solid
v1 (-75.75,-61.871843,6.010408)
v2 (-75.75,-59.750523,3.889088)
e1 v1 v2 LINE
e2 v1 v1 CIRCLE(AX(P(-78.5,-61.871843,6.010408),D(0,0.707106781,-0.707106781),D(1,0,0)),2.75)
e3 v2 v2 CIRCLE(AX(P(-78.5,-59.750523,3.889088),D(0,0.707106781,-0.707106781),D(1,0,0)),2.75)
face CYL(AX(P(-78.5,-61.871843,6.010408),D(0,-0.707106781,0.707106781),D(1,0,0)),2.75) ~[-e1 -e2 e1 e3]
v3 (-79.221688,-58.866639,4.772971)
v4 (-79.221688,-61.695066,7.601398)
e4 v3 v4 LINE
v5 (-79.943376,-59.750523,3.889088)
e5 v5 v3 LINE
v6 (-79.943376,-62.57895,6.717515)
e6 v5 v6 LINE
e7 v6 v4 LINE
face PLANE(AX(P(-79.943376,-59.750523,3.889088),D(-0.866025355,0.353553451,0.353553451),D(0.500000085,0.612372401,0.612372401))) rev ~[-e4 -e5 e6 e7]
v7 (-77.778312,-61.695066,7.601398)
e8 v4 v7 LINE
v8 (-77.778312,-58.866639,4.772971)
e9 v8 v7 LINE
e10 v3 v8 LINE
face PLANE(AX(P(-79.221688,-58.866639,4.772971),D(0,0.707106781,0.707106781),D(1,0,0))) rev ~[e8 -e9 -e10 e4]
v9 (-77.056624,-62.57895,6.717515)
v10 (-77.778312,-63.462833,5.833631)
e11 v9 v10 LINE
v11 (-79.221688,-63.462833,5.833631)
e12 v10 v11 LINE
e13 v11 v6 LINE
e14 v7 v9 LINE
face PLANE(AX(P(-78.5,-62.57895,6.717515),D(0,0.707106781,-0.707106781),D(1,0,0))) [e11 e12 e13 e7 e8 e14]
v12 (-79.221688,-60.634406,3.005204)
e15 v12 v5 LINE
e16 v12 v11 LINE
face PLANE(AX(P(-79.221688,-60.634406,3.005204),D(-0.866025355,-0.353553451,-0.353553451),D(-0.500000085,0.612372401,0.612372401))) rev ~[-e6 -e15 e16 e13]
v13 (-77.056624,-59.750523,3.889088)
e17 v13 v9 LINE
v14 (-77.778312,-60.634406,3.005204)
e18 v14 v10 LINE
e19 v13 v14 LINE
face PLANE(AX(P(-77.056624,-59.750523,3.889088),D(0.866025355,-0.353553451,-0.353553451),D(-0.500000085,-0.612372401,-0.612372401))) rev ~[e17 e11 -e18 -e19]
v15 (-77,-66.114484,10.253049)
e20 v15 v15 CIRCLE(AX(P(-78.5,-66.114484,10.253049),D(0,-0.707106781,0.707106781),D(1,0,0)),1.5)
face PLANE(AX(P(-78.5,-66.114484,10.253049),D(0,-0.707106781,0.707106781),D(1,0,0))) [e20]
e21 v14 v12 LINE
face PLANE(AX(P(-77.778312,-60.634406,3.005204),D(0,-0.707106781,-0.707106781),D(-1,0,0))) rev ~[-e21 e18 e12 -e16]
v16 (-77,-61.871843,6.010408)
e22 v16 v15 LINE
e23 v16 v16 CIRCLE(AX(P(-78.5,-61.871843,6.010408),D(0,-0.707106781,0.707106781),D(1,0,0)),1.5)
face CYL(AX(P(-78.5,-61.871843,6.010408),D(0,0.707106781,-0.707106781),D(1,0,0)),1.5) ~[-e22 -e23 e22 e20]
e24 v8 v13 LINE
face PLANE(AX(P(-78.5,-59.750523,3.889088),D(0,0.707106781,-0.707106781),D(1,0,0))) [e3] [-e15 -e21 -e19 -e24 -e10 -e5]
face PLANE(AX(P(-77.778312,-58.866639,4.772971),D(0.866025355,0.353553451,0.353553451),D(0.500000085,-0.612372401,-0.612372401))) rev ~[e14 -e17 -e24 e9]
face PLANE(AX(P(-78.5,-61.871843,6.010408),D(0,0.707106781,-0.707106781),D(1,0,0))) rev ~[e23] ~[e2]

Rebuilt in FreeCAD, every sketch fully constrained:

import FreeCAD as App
import Part
import Sketcher
Q = App.Units.Quantity

doc = App.newDocument("Part")
params = doc.addObject("Spreadsheet::Sheet", "Params")
for row, (alias, value) in enumerate([
    ("sketch1_diameter", "5.5 mm"),
    ("pad1_length", "3 mm"),
    ("sketch2_diameter", "3 mm"),
    ("pad2_length", "6 mm"),
    ("pocket1_length", "4 mm"),
], start=1):
    params.set(f"A{row}", alias)
    params.set(f"B{row}", "=" + value)
    params.setAlias(f"B{row}", alias)

body = doc.addObject("PartDesign::Body", "Body")

# Sketch on XY plane
sketch1 = doc.addObject("Sketcher::SketchObject", "Sketch")
body.addObject(sketch1)
sketch1.AttachmentSupport = (doc.XY_Plane, [""])
sketch1.MapMode = "FlatFace"
sketch1.addGeometry(Part.Circle(App.Vector(0, 0, 0), App.Vector(0, 0, 1), 2.8), False)
sketch1.addConstraint([
    Sketcher.Constraint("Coincident", 0, 3, -1, 1),
    Sketcher.Constraint("Diameter", 0, Q("5.5 mm")),
])
sketch1.setExpression("Constraints[1]", "Params.sketch1_diameter")
pad1 = doc.addObject("PartDesign::Pad", "Pad")
body.addObject(pad1)
pad1.Profile = sketch1
pad1.setExpression("Length", "Params.pad1_length")

# Sketch on XY plane
sketch2 = doc.addObject("Sketcher::SketchObject", "Sketch001")
body.addObject(sketch2)
sketch2.AttachmentSupport = (doc.XY_Plane, [""])
sketch2.MapMode = "FlatFace"
sketch2.addGeometry(Part.Circle(App.Vector(0, 0, 0), App.Vector(0, 0, 1), 1.5), False)
sketch2.addConstraint([
    Sketcher.Constraint("Coincident", 0, 3, -1, 1),
    Sketcher.Constraint("Diameter", 0, Q("3 mm")),
])
sketch2.setExpression("Constraints[1]", "Params.sketch2_diameter")
pad2 = doc.addObject("PartDesign::Pad", "Pad001")
body.addObject(pad2)
pad2.Profile = sketch2
pad2.setExpression("Length", "Params.pad2_length")
pad2.Reversed = True

# Sketch on XY plane
sketch3 = doc.addObject("Sketcher::SketchObject", "Sketch002")
body.addObject(sketch3)
sketch3.AttachmentSupport = (doc.XY_Plane, [""])
sketch3.MapMode = "FlatFace"
sketch3.AttachmentOffset = App.Placement(App.Vector(0, 0, 3), App.Rotation())
sketch3.addGeometry([
    Part.LineSegment(App.Vector(0.7, -1.2, 0), App.Vector(1.4, 0, 0)),  # 0
    Part.LineSegment(App.Vector(1.4, 0, 0), App.Vector(0.7, 1.2, 0)),  # 1
    Part.LineSegment(App.Vector(0.7, 1.2, 0), App.Vector(-0.7, 1.2, 0)),  # 2
    Part.LineSegment(App.Vector(-0.7, 1.2, 0), App.Vector(-1.4, 0, 0)),  # 3
    Part.LineSegment(App.Vector(-1.4, 0, 0), App.Vector(-0.7, -1.2, 0)),  # 4
    Part.LineSegment(App.Vector(-0.7, -1.2, 0), App.Vector(0.7, -1.2, 0)),  # 5
], False)
sketch3.addConstraint([
    Sketcher.Constraint("Coincident", 0, 2, 1, 1),
    Sketcher.Constraint("Coincident", 1, 2, 2, 1),
    Sketcher.Constraint("Coincident", 2, 2, 3, 1),
    Sketcher.Constraint("Coincident", 3, 2, 4, 1),
    Sketcher.Constraint("Coincident", 4, 2, 5, 1),
    Sketcher.Constraint("Coincident", 5, 2, 0, 1),
    Sketcher.Constraint("Horizontal", 2),
    Sketcher.Constraint("Horizontal", 5),
    Sketcher.Constraint("Symmetric", 0, 2, 3, 2, -1, 1),
    Sketcher.Constraint("Symmetric", 1, 2, 4, 2, -1, 1),
    Sketcher.Constraint("PointOnObject", 0, 2, -1),
    Sketcher.Constraint("Parallel", 0, 3),
    Sketcher.Constraint("Vertical", 2, 2, 4, 2),
    Sketcher.Constraint("Angle", 0, Q("59.999994 deg")),
    Sketcher.Constraint("DistanceY", 4, 2, 2, 2, Q("2.5 mm")),
    Sketcher.Constraint("DistanceX", 2, 2, 2, 1, Q("1.443376 mm")),
])
pocket1 = doc.addObject("PartDesign::Pocket", "Pocket")
body.addObject(pocket1)
pocket1.Profile = sketch3
pocket1.setExpression("Length", "Params.pocket1_length")
body2 = doc.addObject("PartDesign::Body", "Body001")
doc.recompute()

body.Placement = App.Placement(App.Vector(-78.5, -61.871843, 6.010408), App.Rotation(App.Vector(1, 0, 0), 225))
boolean = doc.addObject("PartDesign::Boolean", "Boolean")
body2.addObject(boolean)
boolean.Type = "Fuse"
boolean.addObjects([body])

doc.recompute()
